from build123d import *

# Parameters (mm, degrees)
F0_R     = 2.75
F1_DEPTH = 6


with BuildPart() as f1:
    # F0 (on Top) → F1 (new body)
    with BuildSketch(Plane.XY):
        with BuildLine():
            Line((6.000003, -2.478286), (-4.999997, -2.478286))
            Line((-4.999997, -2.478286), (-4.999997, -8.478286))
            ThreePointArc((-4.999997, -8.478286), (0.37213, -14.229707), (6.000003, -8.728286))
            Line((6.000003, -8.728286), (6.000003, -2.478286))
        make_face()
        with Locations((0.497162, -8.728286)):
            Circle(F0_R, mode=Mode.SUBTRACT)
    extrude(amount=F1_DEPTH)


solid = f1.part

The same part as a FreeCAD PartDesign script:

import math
import FreeCAD as App
import Part
import Sketcher
from FreeCAD import Vector

doc = App.newDocument("Part")
body = doc.addObject("PartDesign::Body", "Body")

sketch1 = doc.addObject("Sketcher::SketchObject", "Sketch")
body.addObject(sketch1)
sketch1.AttachmentSupport = (doc.XY_Plane, [""])
sketch1.MapMode = "FlatFace"
sketch1.addGeometry([
    Part.LineSegment(Vector(6.000003, -2.478286, 0), Vector(-4.999997, -2.478286, 0)),
    Part.LineSegment(Vector(-4.999997, -2.478286, 0), Vector(-4.999997, -8.478286, 0)),
    Part.ArcOfCircle(Part.Circle(Vector(0.497162, -8.728287, 0), Vector(0, 0, 1), 5.502841), math.radians(177.396087), math.radians(360.000007)),
    Part.LineSegment(Vector(6.000003, -8.728286, 0), Vector(6.000003, -2.478286, 0)),
    Part.Circle(Vector(0.497162, -8.728286, 0), Vector(0, 0, 1), 2.75),
], False)
sketch1.addConstraint([
    Sketcher.Constraint("Coincident", 0, 2, 1, 1),
    Sketcher.Constraint("Coincident", 1, 2, 2, 1),
    Sketcher.Constraint("Tangent", 2, 2, 3, 1),
    Sketcher.Constraint("Coincident", 3, 2, 0, 1),
    Sketcher.Constraint("Horizontal", 0),
    Sketcher.Constraint("Vertical", 1),
    Sketcher.Constraint("Vertical", 3),
    Sketcher.Constraint("Coincident", 4, 3, 2, 3),
    Sketcher.Constraint("Diameter", 4, 5.5),
    Sketcher.Constraint("DistanceX", 0, 2, 0, 1, 11.0),
    Sketcher.Constraint("DistanceY", 1, 2, 1, 1, 6.0),
    Sketcher.Constraint("DistanceY", 3, 1, 3, 2, 6.25),
    Sketcher.Constraint("DistanceX", -1, 1, 2, 3, 0.497162),
    Sketcher.Constraint("DistanceY", 2, 3, -1, 1, 8.728287),
])
pad1 = doc.addObject("PartDesign::Pad", "Pad")
body.addObject(pad1)
pad1.Profile = sketch1
pad1.Length = 6

doc.recompute()
